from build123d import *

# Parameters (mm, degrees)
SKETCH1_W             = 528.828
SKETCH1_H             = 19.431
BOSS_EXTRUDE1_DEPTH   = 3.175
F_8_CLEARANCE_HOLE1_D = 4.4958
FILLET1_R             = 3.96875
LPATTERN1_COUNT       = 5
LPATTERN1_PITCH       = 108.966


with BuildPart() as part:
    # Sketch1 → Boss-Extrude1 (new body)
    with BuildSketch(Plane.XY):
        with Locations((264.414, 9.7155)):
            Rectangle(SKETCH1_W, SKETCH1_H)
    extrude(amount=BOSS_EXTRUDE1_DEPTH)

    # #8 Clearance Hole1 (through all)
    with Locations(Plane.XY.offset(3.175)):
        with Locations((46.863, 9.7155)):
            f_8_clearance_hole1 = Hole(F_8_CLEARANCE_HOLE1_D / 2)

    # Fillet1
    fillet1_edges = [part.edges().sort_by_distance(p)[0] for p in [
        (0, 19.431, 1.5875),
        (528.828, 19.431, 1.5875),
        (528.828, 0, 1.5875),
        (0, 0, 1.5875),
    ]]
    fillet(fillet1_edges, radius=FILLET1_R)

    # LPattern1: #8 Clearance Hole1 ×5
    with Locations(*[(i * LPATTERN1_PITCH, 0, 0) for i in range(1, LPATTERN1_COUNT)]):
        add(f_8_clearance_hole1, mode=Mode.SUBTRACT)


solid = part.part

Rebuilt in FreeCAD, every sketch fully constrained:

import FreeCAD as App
import Part
import Sketcher

V = App.Vector
Q = App.Units.Quantity


def edges_at(feature, points):
    """Names of the edges that pass closest to the given points."""
    edges = feature.Shape.Edges
    near = lambda p: min(range(len(edges)), key=lambda i: edges[i].distToShape(Part.Vertex(*p))[0])
    return sorted({f"Edge{near(p) + 1}" for p in points})


def add_polygon(sketch, points):
    """Adds a closed chain of lines whose ends are joined by coincident constraints."""
    first, n = sketch.GeometryCount, len(points)
    for a, b in zip(points, points[1:] + points[:1]):
        sketch.addGeometry(Part.LineSegment(App.Vector(*a, 0), App.Vector(*b, 0)), False)
    for i in range(n):
        sketch.addConstraint(Sketcher.Constraint("Coincident", first + i, 2, first + (i + 1) % n, 1))

doc = App.newDocument("Part")
body = doc.addObject("PartDesign::Body", "Body")

sketch1 = doc.addObject("Sketcher::SketchObject", "Sketch")
body.addObject(sketch1)
sketch1.AttachmentSupport = (doc.XY_Plane, [""])
sketch1.MapMode = "FlatFace"
add_polygon(sketch1, [(0, 19), (0, 0), (529, 0), (529, 19)])
sketch1.addConstraint([
    Sketcher.Constraint("Vertical", 0),
    Sketcher.Constraint("Horizontal", 1),
    Sketcher.Constraint("Vertical", 2),
    Sketcher.Constraint("Horizontal", 3),
    Sketcher.Constraint("Coincident", 0, 2, -1, 1),
    Sketcher.Constraint("DistanceX", 1, 1, 1, 2, Q("20.82 in")),
    Sketcher.Constraint("DistanceY", 0, 2, 0, 1, Q("0.765 in")),
])
pad1 = doc.addObject("PartDesign::Pad", "Pad")
body.addObject(pad1)
pad1.Profile = sketch1
pad1.Length = Q("0.125 in")

sketch2 = doc.addObject("Sketcher::SketchObject", "Sketch001")
body.addObject(sketch2)
sketch2.AttachmentSupport = (doc.XY_Plane, [""])
sketch2.MapMode = "FlatFace"
sketch2.AttachmentOffset = App.Placement(V(0, 0, 0.125 * 25.4), App.Rotation())
sketch2.addGeometry(Part.Circle(V(46.9, 9.7, 0), V(0, 0, 1), 2.2), False)
sketch2.addConstraint([
    Sketcher.Constraint("Diameter", 0, Q("0.177 in")),
    Sketcher.Constraint("DistanceX", -1, 1, 0, 3, Q("1.845 in")),
    Sketcher.Constraint("DistanceY", -1, 1, 0, 3, Q("0.3825 in")),
])
doc.recompute()
hole = doc.addObject("PartDesign::Hole", "Hole")
body.addObject(hole)
hole.Profile = sketch2
hole.ThreadType = "None"
hole.Diameter = Q("0.177 in")
hole.DepthType = "ThroughAll"
doc.recompute()

fillet = doc.addObject("PartDesign::Fillet", "Fillet")
body.addObject(fillet)
fillet.Base = (hole, edges_at(hole, [
    (0, 19.431, 1.587),
    (528.828, 19.431, 1.587),
    (528.828, 0, 1.587),
    (0, 0, 1.587),
]))
fillet.Radius = Q("0.15625 in")
doc.recompute()

linearpattern = doc.addObject("PartDesign::LinearPattern", "LinearPattern")
body.addObject(linearpattern)
linearpattern.Originals = [hole]
linearpattern.Direction = (doc.X_Axis, [""])
linearpattern.Mode = "offset"
linearpattern.Offset = Q("4.29 in")
linearpattern.Occurrences = 5
body.Tip = linearpattern

doc.recompute()
